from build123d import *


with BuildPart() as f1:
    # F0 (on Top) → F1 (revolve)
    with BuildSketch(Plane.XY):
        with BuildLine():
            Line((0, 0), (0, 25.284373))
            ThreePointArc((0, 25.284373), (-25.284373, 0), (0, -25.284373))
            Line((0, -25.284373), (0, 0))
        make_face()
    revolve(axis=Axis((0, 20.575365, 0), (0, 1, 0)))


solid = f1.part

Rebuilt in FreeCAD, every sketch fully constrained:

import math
import FreeCAD as App
import Part
import Sketcher

V = App.Vector
Q = App.Units.Quantity

doc = App.newDocument("Part")
body = doc.addObject("PartDesign::Body", "Body")

sketch1 = doc.addObject("Sketcher::SketchObject", "Sketch")
body.addObject(sketch1)
sketch1.AttachmentSupport = (doc.XY_Plane, [""])
sketch1.MapMode = "FlatFace"
sketch1.addGeometry(Part.ArcOfCircle(Part.Circle(V(0, 0, 0), V(0, 0, 1), 25), math.radians(90), math.radians(270)), False)
sketch1.addGeometry(Part.LineSegment(V(0, -25, 0), V(0, 25, 0)), False)
sketch1.addConstraint(Sketcher.Constraint("Coincident", 0, 1, 1, 2))
sketch1.addConstraint(Sketcher.Constraint("Coincident", 1, 1, 0, 2))
sketch1.addConstraint(Sketcher.Constraint("Vertical", 1))
sketch1.addConstraint(Sketcher.Constraint("Coincident", 0, 3, -1, 1))
sketch1.addConstraint(Sketcher.Constraint("PointOnObject", 0, 1, -2))
sketch1.addConstraint(Sketcher.Constraint("Radius", 0, Q("25.284373 mm")))
revolution = doc.addObject("PartDesign::Revolution", "Revolution")
body.addObject(revolution)
revolution.Profile = sketch1
revolution.ReferenceAxis = (sketch1, ["V_Axis"])
revolution.Angle = 360

doc.recompute()
